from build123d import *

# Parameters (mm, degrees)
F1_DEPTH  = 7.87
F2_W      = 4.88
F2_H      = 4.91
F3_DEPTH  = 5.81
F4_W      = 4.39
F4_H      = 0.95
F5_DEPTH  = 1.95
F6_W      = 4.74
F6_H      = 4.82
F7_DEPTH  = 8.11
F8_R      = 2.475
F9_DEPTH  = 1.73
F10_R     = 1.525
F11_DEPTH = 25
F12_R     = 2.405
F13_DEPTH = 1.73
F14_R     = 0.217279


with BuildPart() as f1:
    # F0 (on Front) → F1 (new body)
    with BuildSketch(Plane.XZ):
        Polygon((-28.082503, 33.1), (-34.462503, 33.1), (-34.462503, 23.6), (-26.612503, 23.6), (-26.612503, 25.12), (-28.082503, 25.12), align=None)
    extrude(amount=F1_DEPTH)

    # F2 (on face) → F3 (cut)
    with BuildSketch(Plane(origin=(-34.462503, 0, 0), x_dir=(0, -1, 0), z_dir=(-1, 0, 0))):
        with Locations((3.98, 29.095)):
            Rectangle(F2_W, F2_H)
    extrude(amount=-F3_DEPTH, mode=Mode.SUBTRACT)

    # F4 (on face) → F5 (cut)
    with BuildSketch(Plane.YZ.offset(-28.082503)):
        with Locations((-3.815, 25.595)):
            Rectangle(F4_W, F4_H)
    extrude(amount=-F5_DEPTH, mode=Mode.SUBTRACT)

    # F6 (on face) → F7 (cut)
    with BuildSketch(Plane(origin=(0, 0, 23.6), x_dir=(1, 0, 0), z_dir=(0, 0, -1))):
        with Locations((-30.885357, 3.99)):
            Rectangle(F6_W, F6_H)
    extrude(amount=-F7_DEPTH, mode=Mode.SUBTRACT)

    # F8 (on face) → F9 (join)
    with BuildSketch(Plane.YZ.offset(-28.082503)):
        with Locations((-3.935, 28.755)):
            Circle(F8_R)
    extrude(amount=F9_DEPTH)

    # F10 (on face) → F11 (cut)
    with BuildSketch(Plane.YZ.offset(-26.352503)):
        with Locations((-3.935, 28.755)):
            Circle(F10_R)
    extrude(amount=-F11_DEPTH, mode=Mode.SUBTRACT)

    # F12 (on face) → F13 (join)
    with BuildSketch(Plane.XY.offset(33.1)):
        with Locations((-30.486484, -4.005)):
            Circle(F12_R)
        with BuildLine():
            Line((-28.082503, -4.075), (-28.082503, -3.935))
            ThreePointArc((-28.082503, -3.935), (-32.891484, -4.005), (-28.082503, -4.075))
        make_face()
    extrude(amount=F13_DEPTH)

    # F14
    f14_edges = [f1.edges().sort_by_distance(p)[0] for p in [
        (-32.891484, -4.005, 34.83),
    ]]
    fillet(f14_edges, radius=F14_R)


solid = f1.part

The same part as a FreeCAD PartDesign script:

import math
import FreeCAD as App
import Part
import Sketcher

V = App.Vector


def edges_at(feature, points):
    """Names of the edges that pass closest to the given points."""
    edges = feature.Shape.Edges
    near = lambda p: min(range(len(edges)), key=lambda i: edges[i].distToShape(Part.Vertex(*p))[0])
    return sorted({f"Edge{near(p) + 1}" for p in points})

doc = App.newDocument("Part")
body = doc.addObject("PartDesign::Body", "Body")

sketch1 = doc.addObject("Sketcher::SketchObject", "Sketch")
body.addObject(sketch1)
sketch1.AttachmentSupport = (doc.XZ_Plane, [""])
sketch1.MapMode = "FlatFace"
sketch1.addGeometry([
    Part.LineSegment(V(-28.1, 33.1, 0), V(-34.5, 33.1, 0)),
    Part.LineSegment(V(-34.5, 33.1, 0), V(-34.5, 23.6, 0)),
    Part.LineSegment(V(-34.5, 23.6, 0), V(-26.6, 23.6, 0)),
    Part.LineSegment(V(-26.6, 23.6, 0), V(-26.6, 25.1, 0)),
    Part.LineSegment(V(-26.6, 25.1, 0), V(-28.1, 25.1, 0)),
    Part.LineSegment(V(-28.1, 25.1, 0), V(-28.1, 33.1, 0)),
], False)
sketch1.addConstraint([
    Sketcher.Constraint("Coincident", 0, 2, 1, 1),
    Sketcher.Constraint("Coincident", 1, 2, 2, 1),
    Sketcher.Constraint("Coincident", 2, 2, 3, 1),
    Sketcher.Constraint("Coincident", 3, 2, 4, 1),
    Sketcher.Constraint("Coincident", 4, 2, 5, 1),
    Sketcher.Constraint("Coincident", 5, 2, 0, 1),
    Sketcher.Constraint("Horizontal", 0),
    Sketcher.Constraint("Vertical", 1),
    Sketcher.Constraint("Horizontal", 2),
    Sketcher.Constraint("Vertical", 3),
    Sketcher.Constraint("Horizontal", 4),
    Sketcher.Constraint("Vertical", 5),
    Sketcher.Constraint("DistanceY", 1, 2, 1, 1, 9.5),
    Sketcher.Constraint("DistanceX", 0, 2, 0, 1, 6.38),
    Sketcher.Constraint("DistanceX", 2, 1, 2, 2, 7.85),
    Sketcher.Constraint("DistanceY", 3, 1, 3, 2, 1.52),
    Sketcher.Constraint("DistanceY", -1, 1, 0, 2, 33.1),
    Sketcher.Constraint("DistanceX", 0, 2, -1, 1, 34.462503),
])
pad1 = doc.addObject("PartDesign::Pad", "Pad")
body.addObject(pad1)
pad1.Profile = sketch1
pad1.Length = 7.87

sketch2 = doc.addObject("Sketcher::SketchObject", "Sketch001")
body.addObject(sketch2)
sketch2.AttachmentSupport = (doc.YZ_Plane, [""])
sketch2.MapMode = "FlatFace"
sketch2.AttachmentOffset = App.Placement(V(0, 0, -34.462503), App.Rotation())
sketch2.addGeometry([
    Part.LineSegment(V(-1.5, 31.6, 0), V(-1.5, 26.6, 0)),
    Part.LineSegment(V(-1.5, 26.6, 0), V(-6.4, 26.6, 0)),
    Part.LineSegment(V(-6.4, 26.6, 0), V(-6.4, 31.6, 0)),
    Part.LineSegment(V(-6.4, 31.6, 0), V(-1.5, 31.6, 0)),
], False)
sketch2.addConstraint([
    Sketcher.Constraint("Coincident", 0, 2, 1, 1),
    Sketcher.Constraint("Coincident", 1, 2, 2, 1),
    Sketcher.Constraint("Coincident", 2, 2, 3, 1),
    Sketcher.Constraint("Coincident", 3, 2, 0, 1),
    Sketcher.Constraint("Vertical", 0),
    Sketcher.Constraint("Horizontal", 1),
    Sketcher.Constraint("Vertical", 2),
    Sketcher.Constraint("Horizontal", 3),
    Sketcher.Constraint("DistanceX", 1, 2, 1, 1, 4.88),
    Sketcher.Constraint("DistanceY", 0, 2, 0, 1, 4.91),
    Sketcher.Constraint("DistanceX", 0, 2, -1, 1, 1.54),
    Sketcher.Constraint("DistanceY", -1, 1, 0, 2, 26.64),
])
pocket1 = doc.addObject("PartDesign::Pocket", "Pocket")
body.addObject(pocket1)
pocket1.Profile = sketch2
pocket1.Length = 5.81
pocket1.Reversed = True

sketch3 = doc.addObject("Sketcher::SketchObject", "Sketch002")
body.addObject(sketch3)
sketch3.AttachmentSupport = (doc.YZ_Plane, [""])
sketch3.MapMode = "FlatFace"
sketch3.AttachmentOffset = App.Placement(V(0, 0, -28.082503), App.Rotation())
sketch3.addGeometry([
    Part.LineSegment(V(-6, 26.1, 0), V(-6, 25.1, 0)),
    Part.LineSegment(V(-6, 25.1, 0), V(-1.6, 25.1, 0)),
    Part.LineSegment(V(-1.6, 25.1, 0), V(-1.6, 26.1, 0)),
    Part.LineSegment(V(-1.6, 26.1, 0), V(-6, 26.1, 0)),
], False)
sketch3.addConstraint([
    Sketcher.Constraint("Coincident", 0, 2, 1, 1),
    Sketcher.Constraint("Coincident", 1, 2, 2, 1),
    Sketcher.Constraint("Coincident", 2, 2, 3, 1),
    Sketcher.Constraint("Coincident", 3, 2, 0, 1),
    Sketcher.Constraint("Vertical", 0),
    Sketcher.Constraint("Horizontal", 1),
    Sketcher.Constraint("Vertical", 2),
    Sketcher.Constraint("Horizontal", 3),
    Sketcher.Constraint("DistanceX", 1, 1, 1, 2, 4.39),
    Sketcher.Constraint("DistanceY", 0, 2, 0, 1, 0.95),
    Sketcher.Constraint("DistanceX", 0, 2, -1, 1, 6.01),
    Sketcher.Constraint("DistanceY", -1, 1, 0, 2, 25.12),
])
pocket2 = doc.addObject("PartDesign::Pocket", "Pocket001")
body.addObject(pocket2)
pocket2.Profile = sketch3
pocket2.Length = 1.95

sketch4 = doc.addObject("Sketcher::SketchObject", "Sketch003")
body.addObject(sketch4)
sketch4.AttachmentSupport = (doc.XY_Plane, [""])
sketch4.MapMode = "FlatFace"
sketch4.AttachmentOffset = App.Placement(V(0, 0, 23.6), App.Rotation())
sketch4.addGeometry([
    Part.LineSegment(V(-33.3, -6.4, 0), V(-33.3, -1.6, 0)),
    Part.LineSegment(V(-33.3, -1.6, 0), V(-28.5, -1.6, 0)),
    Part.LineSegment(V(-28.5, -1.6, 0), V(-28.5, -6.4, 0)),
    Part.LineSegment(V(-28.5, -6.4, 0), V(-33.3, -6.4, 0)),
], False)
sketch4.addConstraint([
    Sketcher.Constraint("Coincident", 0, 2, 1, 1),
    Sketcher.Constraint("Coincident", 1, 2, 2, 1),
    Sketcher.Constraint("Coincident", 2, 2, 3, 1),
    Sketcher.Constraint("Coincident", 3, 2, 0, 1),
    Sketcher.Constraint("Vertical", 0),
    Sketcher.Constraint("Horizontal", 1),
    Sketcher.Constraint("Vertical", 2),
    Sketcher.Constraint("Horizontal", 3),
    Sketcher.Constraint("DistanceX", 1, 1, 1, 2, 4.74),
    Sketcher.Constraint("DistanceY", 0, 1, 0, 2, 4.82),
    Sketcher.Constraint("DistanceY", 2, 2, -1, 1, 6.4),
    Sketcher.Constraint("DistanceX", 0, 2, -1, 1, 33.255357),
])
pocket3 = doc.addObject("PartDesign::Pocket", "Pocket002")
body.addObject(pocket3)
pocket3.Profile = sketch4
pocket3.Length = 8.11
pocket3.Reversed = True

sketch5 = doc.addObject("Sketcher::SketchObject", "Sketch004")
body.addObject(sketch5)
sketch5.AttachmentSupport = (doc.YZ_Plane, [""])
sketch5.MapMode = "FlatFace"
sketch5.AttachmentOffset = App.Placement(V(0, 0, -28.082503), App.Rotation())
sketch5.addGeometry(Part.Circle(V(-3.9, 28.8, 0), V(0, 0, 1), 2.5), False)
sketch5.addConstraint([
    Sketcher.Constraint("Diameter", 0, 4.95),
    Sketcher.Constraint("DistanceX", 0, 3, -1, 1, 3.935),
    Sketcher.Constraint("DistanceY", -1, 1, 0, 3, 28.755),
])
pad2 = doc.addObject("PartDesign::Pad", "Pad001")
body.addObject(pad2)
pad2.Profile = sketch5
pad2.Length = 1.73

sketch6 = doc.addObject("Sketcher::SketchObject", "Sketch005")
body.addObject(sketch6)
sketch6.AttachmentSupport = (doc.YZ_Plane, [""])
sketch6.MapMode = "FlatFace"
sketch6.AttachmentOffset = App.Placement(V(0, 0, -26.352503), App.Rotation())
sketch6.addGeometry(Part.Circle(V(-3.9, 28.8, 0), V(0, 0, 1), 1.5), False)
sketch6.addConstraint([
    Sketcher.Constraint("Diameter", 0, 3.05),
    Sketcher.Constraint("DistanceX", 0, 3, -1, 1, 3.935),
    Sketcher.Constraint("DistanceY", -1, 1, 0, 3, 28.755),
])
pocket4 = doc.addObject("PartDesign::Pocket", "Pocket003")
body.addObject(pocket4)
pocket4.Profile = sketch6
pocket4.Length = 25

sketch7 = doc.addObject("Sketcher::SketchObject", "Sketch006")
body.addObject(sketch7)
sketch7.AttachmentSupport = (doc.XY_Plane, [""])
sketch7.MapMode = "FlatFace"
sketch7.AttachmentOffset = App.Placement(V(0, 0, 33.1), App.Rotation())
sketch7.addGeometry([
    Part.ArcOfCircle(Part.Circle(V(-30.49, -4, 0), V(0, 0, 1), 2.4), math.radians(-1.67), math.radians(1.67)),
    Part.ArcOfCircle(Part.Circle(V(-30.49, -4, 0), V(0, 0, 1), 2.4), math.radians(2), math.radians(358)),
], False)
sketch7.addConstraint([
    Sketcher.Constraint("Tangent", 0, 1, 1, 2),
    Sketcher.Constraint("Coincident", 1, 1, 0, 2),
    Sketcher.Constraint("Vertical", 0, 1, 1, 1),
    Sketcher.Constraint("Radius", 0, 2.405),
    Sketcher.Constraint("DistanceY", 0, 1, 0, 3, 0.07),
    Sketcher.Constraint("DistanceY", 0, 3, -1, 1, 4.005),
    Sketcher.Constraint("DistanceX", 0, 3, -1, 1, 30.486484),
])
pad3 = doc.addObject("PartDesign::Pad", "Pad002")
body.addObject(pad3)
pad3.Profile = sketch7
pad3.Length = 1.73
doc.recompute()

fillet = doc.addObject("PartDesign::Fillet", "Fillet")
body.addObject(fillet)
fillet.Base = (pad3, edges_at(pad3, [(-32.891, -4.005, 34.83)]))
fillet.Radius = 0.217279

doc.recompute()
